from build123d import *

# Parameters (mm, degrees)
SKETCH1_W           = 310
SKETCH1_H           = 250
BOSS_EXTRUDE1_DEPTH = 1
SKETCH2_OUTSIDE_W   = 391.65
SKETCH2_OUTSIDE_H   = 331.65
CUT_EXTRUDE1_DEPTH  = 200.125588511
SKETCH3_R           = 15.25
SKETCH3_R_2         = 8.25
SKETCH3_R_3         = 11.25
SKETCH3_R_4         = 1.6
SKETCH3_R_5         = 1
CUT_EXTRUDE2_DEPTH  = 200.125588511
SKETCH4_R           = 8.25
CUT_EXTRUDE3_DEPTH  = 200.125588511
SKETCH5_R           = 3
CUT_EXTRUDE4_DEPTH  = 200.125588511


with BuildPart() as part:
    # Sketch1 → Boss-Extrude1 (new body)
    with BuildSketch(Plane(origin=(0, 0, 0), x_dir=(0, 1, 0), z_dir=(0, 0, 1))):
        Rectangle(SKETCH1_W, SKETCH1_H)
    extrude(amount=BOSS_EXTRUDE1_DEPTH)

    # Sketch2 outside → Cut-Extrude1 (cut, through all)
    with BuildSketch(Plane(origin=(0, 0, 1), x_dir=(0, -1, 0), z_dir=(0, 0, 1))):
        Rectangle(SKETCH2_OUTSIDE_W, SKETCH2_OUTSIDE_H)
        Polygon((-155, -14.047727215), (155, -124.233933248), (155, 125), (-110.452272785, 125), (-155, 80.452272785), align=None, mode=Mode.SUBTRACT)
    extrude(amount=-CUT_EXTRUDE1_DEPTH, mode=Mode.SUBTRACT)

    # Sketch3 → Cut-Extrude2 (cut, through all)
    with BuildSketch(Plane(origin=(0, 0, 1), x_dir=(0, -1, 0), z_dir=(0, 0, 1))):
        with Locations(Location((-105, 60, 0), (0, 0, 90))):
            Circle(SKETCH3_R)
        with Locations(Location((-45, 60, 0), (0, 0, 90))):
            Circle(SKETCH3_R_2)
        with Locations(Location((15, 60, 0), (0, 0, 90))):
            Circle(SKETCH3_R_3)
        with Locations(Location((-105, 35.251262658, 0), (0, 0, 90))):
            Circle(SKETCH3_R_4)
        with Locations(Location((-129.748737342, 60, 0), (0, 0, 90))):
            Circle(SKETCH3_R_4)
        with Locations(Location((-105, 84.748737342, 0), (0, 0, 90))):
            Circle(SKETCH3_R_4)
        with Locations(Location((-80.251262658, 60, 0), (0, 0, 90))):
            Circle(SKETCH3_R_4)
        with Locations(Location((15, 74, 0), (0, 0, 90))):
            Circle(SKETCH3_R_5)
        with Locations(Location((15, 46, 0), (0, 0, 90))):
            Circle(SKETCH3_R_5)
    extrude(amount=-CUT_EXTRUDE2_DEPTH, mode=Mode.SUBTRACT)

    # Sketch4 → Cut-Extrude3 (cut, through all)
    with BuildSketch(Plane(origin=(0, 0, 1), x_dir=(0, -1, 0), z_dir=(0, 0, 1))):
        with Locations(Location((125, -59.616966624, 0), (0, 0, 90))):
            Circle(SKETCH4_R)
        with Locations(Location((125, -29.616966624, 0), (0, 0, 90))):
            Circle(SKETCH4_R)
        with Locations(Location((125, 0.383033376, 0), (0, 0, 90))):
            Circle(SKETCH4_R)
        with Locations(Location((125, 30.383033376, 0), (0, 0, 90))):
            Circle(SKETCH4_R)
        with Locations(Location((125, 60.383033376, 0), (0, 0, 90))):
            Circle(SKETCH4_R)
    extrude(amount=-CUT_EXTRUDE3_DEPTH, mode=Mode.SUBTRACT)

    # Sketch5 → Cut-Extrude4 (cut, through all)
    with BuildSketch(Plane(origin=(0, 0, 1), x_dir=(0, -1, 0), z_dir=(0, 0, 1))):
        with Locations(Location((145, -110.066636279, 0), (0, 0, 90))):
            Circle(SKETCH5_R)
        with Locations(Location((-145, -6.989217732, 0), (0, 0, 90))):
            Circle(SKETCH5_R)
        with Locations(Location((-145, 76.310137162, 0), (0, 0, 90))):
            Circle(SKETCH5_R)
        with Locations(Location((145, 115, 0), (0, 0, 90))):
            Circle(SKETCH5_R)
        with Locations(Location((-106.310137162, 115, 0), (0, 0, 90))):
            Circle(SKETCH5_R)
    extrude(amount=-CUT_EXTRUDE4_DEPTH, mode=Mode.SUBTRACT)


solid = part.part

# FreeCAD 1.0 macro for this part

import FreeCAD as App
import Part
import Sketcher
Q = App.Units.Quantity


def add_polygon(sketch, points):
    """Adds a closed chain of lines whose ends are joined by coincident constraints."""
    first, n = sketch.GeometryCount, len(points)
    for a, b in zip(points, points[1:] + points[:1]):
        sketch.addGeometry(Part.LineSegment(App.Vector(*a, 0), App.Vector(*b, 0)), False)
    for i in range(n):
        sketch.addConstraint(Sketcher.Constraint("Coincident", first + i, 2, first + (i + 1) % n, 1))

doc = App.newDocument("Part")
body = doc.addObject("PartDesign::Body", "Body")

# Sketch on XY plane
sketch1 = body.newObject("Sketcher::SketchObject", "Sketch")
sketch1.AttachmentSupport = (doc.getObject("XY_Plane"), [""])
sketch1.MapMode = "FlatFace"
add_polygon(sketch1, [(-125, -155), (125, -155), (125, 155), (-125, 155)])  # lines 0-3
sketch1.addConstraint([
    Sketcher.Constraint("Horizontal", 0),
    Sketcher.Constraint("Vertical", 1),
    Sketcher.Constraint("Horizontal", 2),
    Sketcher.Constraint("Vertical", 3),
    Sketcher.Constraint("Symmetric", 0, 2, 2, 2, -1, 1),
    Sketcher.Constraint("DistanceX", 0, 1, 0, 2, 250.0),
    Sketcher.Constraint("DistanceY", 1, 1, 1, 2, 310.0),
])
pad1 = body.newObject("PartDesign::Pad", "Pad")
pad1.Profile = sketch1
pad1.Length = 1

# Sketch on XY plane
sketch2 = body.newObject("Sketcher::SketchObject", "Sketch001")
sketch2.AttachmentSupport = (doc.getObject("XY_Plane"), [""])
sketch2.MapMode = "FlatFace"
sketch2.AttachmentOffset = App.Placement(App.Vector(0, 0, 1), App.Rotation())
add_polygon(sketch2, [(166, 196), (-166, 196), (-166, -196), (166, -196)])  # lines 0-3
add_polygon(sketch2, [(-124, -155), (-14, 155), (80, 155), (125, 110), (125, -155)])  # lines 4-8
sketch2.addConstraint([
    Sketcher.Constraint("Horizontal", 0),
    Sketcher.Constraint("Vertical", 1),
    Sketcher.Constraint("Horizontal", 2),
    Sketcher.Constraint("Vertical", 3),
    Sketcher.Constraint("Horizontal", 5),
    Sketcher.Constraint("Vertical", 7),
    Sketcher.Constraint("Horizontal", 8),
    Sketcher.Constraint("Symmetric", 0, 2, 2, 2, -1, 1),
    Sketcher.Constraint("Angle", 6, Q("-45 deg")),
    Sketcher.Constraint("Distance", 4, 329.0),
    Sketcher.Constraint("Distance", 6, 63.0),
    Sketcher.Constraint("DistanceX", 5, 1, 5, 2, 94.5),
    Sketcher.Constraint("DistanceY", -1, 1, 4, 2, 155.0),
    Sketcher.Constraint("DistanceX", -1, 1, 6, 2, 125.0),
    Sketcher.Constraint("DistanceY", 7, 2, -1, 1, 155.0),
    Sketcher.Constraint("DistanceX", 0, 2, 0, 1, 331.65),
    Sketcher.Constraint("DistanceY", 1, 2, 1, 1, 391.65),
])
pocket1 = body.newObject("PartDesign::Pocket", "Pocket")
pocket1.Profile = sketch2
pocket1.Type = "ThroughAll"

# Sketch on XY plane
sketch3 = body.newObject("Sketcher::SketchObject", "Sketch002")
sketch3.AttachmentSupport = (doc.getObject("XY_Plane"), [""])
sketch3.MapMode = "FlatFace"
sketch3.AttachmentOffset = App.Placement(App.Vector(0, 0, 1), App.Rotation())
sketch3.addGeometry([
    Part.Circle(App.Vector(60, 105, 0), App.Vector(0, 0, 1), 15.2),  # 0
    Part.Circle(App.Vector(60, 45, 0), App.Vector(0, 0, 1), 8.2),  # 1
    Part.Circle(App.Vector(60, -15, 0), App.Vector(0, 0, 1), 11.2),  # 2
    Part.Circle(App.Vector(35.3, 105, 0), App.Vector(0, 0, 1), 1.6),  # 3
    Part.Circle(App.Vector(60, 129.7, 0), App.Vector(0, 0, 1), 1.6),  # 4
    Part.Circle(App.Vector(84.7, 105, 0), App.Vector(0, 0, 1), 1.6),  # 5
    Part.Circle(App.Vector(60, 80.3, 0), App.Vector(0, 0, 1), 1.6),  # 6
    Part.Circle(App.Vector(74, -15, 0), App.Vector(0, 0, 1), 1),  # 7
    Part.Circle(App.Vector(46, -15, 0), App.Vector(0, 0, 1), 1),  # 8
], False)
sketch3.addConstraint([
    Sketcher.Constraint("Equal", 3, 4),
    Sketcher.Constraint("Equal", 4, 5),
    Sketcher.Constraint("Equal", 5, 6),
    Sketcher.Constraint("Equal", 7, 8),
    Sketcher.Constraint("Horizontal", 0, 3, 3, 3),
    Sketcher.Constraint("Horizontal", 3, 3, 5, 3),
    Sketcher.Constraint("Horizontal", 2, 3, 7, 3),
    Sketcher.Constraint("Horizontal", 7, 3, 8, 3),
    Sketcher.Constraint("Vertical", 0, 3, 1, 3),
    Sketcher.Constraint("Vertical", 1, 3, 2, 3),
    Sketcher.Constraint("Vertical", 2, 3, 4, 3),
    Sketcher.Constraint("Vertical", 4, 3, 6, 3),
    Sketcher.Constraint("Diameter", 7, 2.0),
    Sketcher.Constraint("Diameter", 0, 30.5),
    Sketcher.Constraint("Diameter", 1, 16.5),
    Sketcher.Constraint("Diameter", 2, 22.5),
    Sketcher.Constraint("Diameter", 3, 3.2),
    Sketcher.Constraint("DistanceX", -1, 1, 0, 3, 60.0),
    Sketcher.Constraint("DistanceY", -1, 1, 0, 3, 105.0),
    Sketcher.Constraint("DistanceY", -1, 1, 1, 3, 45.0),
    Sketcher.Constraint("DistanceY", 2, 3, -1, 1, 15.0),
    Sketcher.Constraint("DistanceX", -1, 1, 7, 3, 74.0),
    Sketcher.Constraint("DistanceX", -1, 1, 8, 3, 46.0),
    Sketcher.Constraint("DistanceX", -1, 1, 3, 3, 35.251263),
    Sketcher.Constraint("DistanceY", -1, 1, 4, 3, 129.748737),
    Sketcher.Constraint("DistanceX", -1, 1, 5, 3, 84.748737),
    Sketcher.Constraint("DistanceY", -1, 1, 6, 3, 80.251263),
])
pocket2 = body.newObject("PartDesign::Pocket", "Pocket001")
pocket2.Profile = sketch3
pocket2.Type = "ThroughAll"

# Sketch on XY plane
sketch4 = body.newObject("Sketcher::SketchObject", "Sketch003")
sketch4.AttachmentSupport = (doc.getObject("XY_Plane"), [""])
sketch4.MapMode = "FlatFace"
sketch4.AttachmentOffset = App.Placement(App.Vector(0, 0, 1), App.Rotation())
sketch4.addGeometry([
    Part.Circle(App.Vector(-60, -125, 0), App.Vector(0, 0, 1), 8),  # 0
    Part.Circle(App.Vector(-30, -125, 0), App.Vector(0, 0, 1), 8),  # 1
    Part.Circle(App.Vector(0, -125, 0), App.Vector(0, 0, 1), 8),  # 2
    Part.Circle(App.Vector(30, -125, 0), App.Vector(0, 0, 1), 8),  # 3
    Part.Circle(App.Vector(60, -125, 0), App.Vector(0, 0, 1), 8),  # 4
], False)
sketch4.addConstraint([
    Sketcher.Constraint("Equal", 0, 1),
    Sketcher.Constraint("Equal", 1, 2),
    Sketcher.Constraint("Equal", 2, 3),
    Sketcher.Constraint("Equal", 3, 4),
    Sketcher.Constraint("Horizontal", 0, 3, 1, 3),
    Sketcher.Constraint("Horizontal", 1, 3, 2, 3),
    Sketcher.Constraint("Horizontal", 2, 3, 3, 3),
    Sketcher.Constraint("Horizontal", 3, 3, 4, 3),
    Sketcher.Constraint("Diameter", 0, 16.5),
    Sketcher.Constraint("DistanceY", 0, 3, -1, 1, 125.0),
    Sketcher.Constraint("DistanceX", 0, 3, 1, 3, 30.0),
    Sketcher.Constraint("DistanceX", 1, 3, 2, 3, 30.0),
    Sketcher.Constraint("DistanceX", 2, 3, 3, 3, 30.0),
    Sketcher.Constraint("DistanceX", 3, 3, 4, 3, 30.0),
    Sketcher.Constraint("DistanceX", 0, 3, -1, 1, 59.616967),
])
pocket3 = body.newObject("PartDesign::Pocket", "Pocket002")
pocket3.Profile = sketch4
pocket3.Type = "ThroughAll"

# Sketch on XY plane
sketch5 = body.newObject("Sketcher::SketchObject", "Sketch004")
sketch5.AttachmentSupport = (doc.getObject("XY_Plane"), [""])
sketch5.MapMode = "FlatFace"
sketch5.AttachmentOffset = App.Placement(App.Vector(0, 0, 1), App.Rotation())
sketch5.addGeometry([
    Part.Circle(App.Vector(-110.1, -145, 0), App.Vector(0, 0, 1), 3),  # 0
    Part.Circle(App.Vector(-7, 145, 0), App.Vector(0, 0, 1), 3),  # 1
    Part.Circle(App.Vector(76.3, 145, 0), App.Vector(0, 0, 1), 3),  # 2
    Part.Circle(App.Vector(115, -145, 0), App.Vector(0, 0, 1), 3),  # 3
    Part.Circle(App.Vector(115, 106.3, 0), App.Vector(0, 0, 1), 3),  # 4
], False)
sketch5.addConstraint([
    Sketcher.Constraint("Equal", 0, 1),
    Sketcher.Constraint("Equal", 1, 2),
    Sketcher.Constraint("Equal", 2, 3),
    Sketcher.Constraint("Equal", 3, 4),
    Sketcher.Constraint("Horizontal", 1, 3, 2, 3),
    Sketcher.Constraint("Horizontal", 0, 3, 3, 3),
    Sketcher.Constraint("Vertical", 3, 3, 4, 3),
    Sketcher.Constraint("Diameter", 0, 6.0),
    Sketcher.Constraint("DistanceY", 0, 3, -1, 1, 145.0),
    Sketcher.Constraint("DistanceY", -1, 1, 1, 3, 145.0),
    Sketcher.Constraint("DistanceX", -1, 1, 3, 3, 115.0),
    Sketcher.Constraint("DistanceX", 0, 3, 1, 3, 103.077419),
    Sketcher.Constraint("DistanceX", 0, 3, -1, 1, 110.066636),
    Sketcher.Constraint("DistanceX", -1, 1, 2, 3, 76.310137),
    Sketcher.Constraint("DistanceY", -1, 1, 4, 3, 106.310137),
])
pocket4 = body.newObject("PartDesign::Pocket", "Pocket003")
pocket4.Profile = sketch5
pocket4.Type = "ThroughAll"

doc.recompute()
